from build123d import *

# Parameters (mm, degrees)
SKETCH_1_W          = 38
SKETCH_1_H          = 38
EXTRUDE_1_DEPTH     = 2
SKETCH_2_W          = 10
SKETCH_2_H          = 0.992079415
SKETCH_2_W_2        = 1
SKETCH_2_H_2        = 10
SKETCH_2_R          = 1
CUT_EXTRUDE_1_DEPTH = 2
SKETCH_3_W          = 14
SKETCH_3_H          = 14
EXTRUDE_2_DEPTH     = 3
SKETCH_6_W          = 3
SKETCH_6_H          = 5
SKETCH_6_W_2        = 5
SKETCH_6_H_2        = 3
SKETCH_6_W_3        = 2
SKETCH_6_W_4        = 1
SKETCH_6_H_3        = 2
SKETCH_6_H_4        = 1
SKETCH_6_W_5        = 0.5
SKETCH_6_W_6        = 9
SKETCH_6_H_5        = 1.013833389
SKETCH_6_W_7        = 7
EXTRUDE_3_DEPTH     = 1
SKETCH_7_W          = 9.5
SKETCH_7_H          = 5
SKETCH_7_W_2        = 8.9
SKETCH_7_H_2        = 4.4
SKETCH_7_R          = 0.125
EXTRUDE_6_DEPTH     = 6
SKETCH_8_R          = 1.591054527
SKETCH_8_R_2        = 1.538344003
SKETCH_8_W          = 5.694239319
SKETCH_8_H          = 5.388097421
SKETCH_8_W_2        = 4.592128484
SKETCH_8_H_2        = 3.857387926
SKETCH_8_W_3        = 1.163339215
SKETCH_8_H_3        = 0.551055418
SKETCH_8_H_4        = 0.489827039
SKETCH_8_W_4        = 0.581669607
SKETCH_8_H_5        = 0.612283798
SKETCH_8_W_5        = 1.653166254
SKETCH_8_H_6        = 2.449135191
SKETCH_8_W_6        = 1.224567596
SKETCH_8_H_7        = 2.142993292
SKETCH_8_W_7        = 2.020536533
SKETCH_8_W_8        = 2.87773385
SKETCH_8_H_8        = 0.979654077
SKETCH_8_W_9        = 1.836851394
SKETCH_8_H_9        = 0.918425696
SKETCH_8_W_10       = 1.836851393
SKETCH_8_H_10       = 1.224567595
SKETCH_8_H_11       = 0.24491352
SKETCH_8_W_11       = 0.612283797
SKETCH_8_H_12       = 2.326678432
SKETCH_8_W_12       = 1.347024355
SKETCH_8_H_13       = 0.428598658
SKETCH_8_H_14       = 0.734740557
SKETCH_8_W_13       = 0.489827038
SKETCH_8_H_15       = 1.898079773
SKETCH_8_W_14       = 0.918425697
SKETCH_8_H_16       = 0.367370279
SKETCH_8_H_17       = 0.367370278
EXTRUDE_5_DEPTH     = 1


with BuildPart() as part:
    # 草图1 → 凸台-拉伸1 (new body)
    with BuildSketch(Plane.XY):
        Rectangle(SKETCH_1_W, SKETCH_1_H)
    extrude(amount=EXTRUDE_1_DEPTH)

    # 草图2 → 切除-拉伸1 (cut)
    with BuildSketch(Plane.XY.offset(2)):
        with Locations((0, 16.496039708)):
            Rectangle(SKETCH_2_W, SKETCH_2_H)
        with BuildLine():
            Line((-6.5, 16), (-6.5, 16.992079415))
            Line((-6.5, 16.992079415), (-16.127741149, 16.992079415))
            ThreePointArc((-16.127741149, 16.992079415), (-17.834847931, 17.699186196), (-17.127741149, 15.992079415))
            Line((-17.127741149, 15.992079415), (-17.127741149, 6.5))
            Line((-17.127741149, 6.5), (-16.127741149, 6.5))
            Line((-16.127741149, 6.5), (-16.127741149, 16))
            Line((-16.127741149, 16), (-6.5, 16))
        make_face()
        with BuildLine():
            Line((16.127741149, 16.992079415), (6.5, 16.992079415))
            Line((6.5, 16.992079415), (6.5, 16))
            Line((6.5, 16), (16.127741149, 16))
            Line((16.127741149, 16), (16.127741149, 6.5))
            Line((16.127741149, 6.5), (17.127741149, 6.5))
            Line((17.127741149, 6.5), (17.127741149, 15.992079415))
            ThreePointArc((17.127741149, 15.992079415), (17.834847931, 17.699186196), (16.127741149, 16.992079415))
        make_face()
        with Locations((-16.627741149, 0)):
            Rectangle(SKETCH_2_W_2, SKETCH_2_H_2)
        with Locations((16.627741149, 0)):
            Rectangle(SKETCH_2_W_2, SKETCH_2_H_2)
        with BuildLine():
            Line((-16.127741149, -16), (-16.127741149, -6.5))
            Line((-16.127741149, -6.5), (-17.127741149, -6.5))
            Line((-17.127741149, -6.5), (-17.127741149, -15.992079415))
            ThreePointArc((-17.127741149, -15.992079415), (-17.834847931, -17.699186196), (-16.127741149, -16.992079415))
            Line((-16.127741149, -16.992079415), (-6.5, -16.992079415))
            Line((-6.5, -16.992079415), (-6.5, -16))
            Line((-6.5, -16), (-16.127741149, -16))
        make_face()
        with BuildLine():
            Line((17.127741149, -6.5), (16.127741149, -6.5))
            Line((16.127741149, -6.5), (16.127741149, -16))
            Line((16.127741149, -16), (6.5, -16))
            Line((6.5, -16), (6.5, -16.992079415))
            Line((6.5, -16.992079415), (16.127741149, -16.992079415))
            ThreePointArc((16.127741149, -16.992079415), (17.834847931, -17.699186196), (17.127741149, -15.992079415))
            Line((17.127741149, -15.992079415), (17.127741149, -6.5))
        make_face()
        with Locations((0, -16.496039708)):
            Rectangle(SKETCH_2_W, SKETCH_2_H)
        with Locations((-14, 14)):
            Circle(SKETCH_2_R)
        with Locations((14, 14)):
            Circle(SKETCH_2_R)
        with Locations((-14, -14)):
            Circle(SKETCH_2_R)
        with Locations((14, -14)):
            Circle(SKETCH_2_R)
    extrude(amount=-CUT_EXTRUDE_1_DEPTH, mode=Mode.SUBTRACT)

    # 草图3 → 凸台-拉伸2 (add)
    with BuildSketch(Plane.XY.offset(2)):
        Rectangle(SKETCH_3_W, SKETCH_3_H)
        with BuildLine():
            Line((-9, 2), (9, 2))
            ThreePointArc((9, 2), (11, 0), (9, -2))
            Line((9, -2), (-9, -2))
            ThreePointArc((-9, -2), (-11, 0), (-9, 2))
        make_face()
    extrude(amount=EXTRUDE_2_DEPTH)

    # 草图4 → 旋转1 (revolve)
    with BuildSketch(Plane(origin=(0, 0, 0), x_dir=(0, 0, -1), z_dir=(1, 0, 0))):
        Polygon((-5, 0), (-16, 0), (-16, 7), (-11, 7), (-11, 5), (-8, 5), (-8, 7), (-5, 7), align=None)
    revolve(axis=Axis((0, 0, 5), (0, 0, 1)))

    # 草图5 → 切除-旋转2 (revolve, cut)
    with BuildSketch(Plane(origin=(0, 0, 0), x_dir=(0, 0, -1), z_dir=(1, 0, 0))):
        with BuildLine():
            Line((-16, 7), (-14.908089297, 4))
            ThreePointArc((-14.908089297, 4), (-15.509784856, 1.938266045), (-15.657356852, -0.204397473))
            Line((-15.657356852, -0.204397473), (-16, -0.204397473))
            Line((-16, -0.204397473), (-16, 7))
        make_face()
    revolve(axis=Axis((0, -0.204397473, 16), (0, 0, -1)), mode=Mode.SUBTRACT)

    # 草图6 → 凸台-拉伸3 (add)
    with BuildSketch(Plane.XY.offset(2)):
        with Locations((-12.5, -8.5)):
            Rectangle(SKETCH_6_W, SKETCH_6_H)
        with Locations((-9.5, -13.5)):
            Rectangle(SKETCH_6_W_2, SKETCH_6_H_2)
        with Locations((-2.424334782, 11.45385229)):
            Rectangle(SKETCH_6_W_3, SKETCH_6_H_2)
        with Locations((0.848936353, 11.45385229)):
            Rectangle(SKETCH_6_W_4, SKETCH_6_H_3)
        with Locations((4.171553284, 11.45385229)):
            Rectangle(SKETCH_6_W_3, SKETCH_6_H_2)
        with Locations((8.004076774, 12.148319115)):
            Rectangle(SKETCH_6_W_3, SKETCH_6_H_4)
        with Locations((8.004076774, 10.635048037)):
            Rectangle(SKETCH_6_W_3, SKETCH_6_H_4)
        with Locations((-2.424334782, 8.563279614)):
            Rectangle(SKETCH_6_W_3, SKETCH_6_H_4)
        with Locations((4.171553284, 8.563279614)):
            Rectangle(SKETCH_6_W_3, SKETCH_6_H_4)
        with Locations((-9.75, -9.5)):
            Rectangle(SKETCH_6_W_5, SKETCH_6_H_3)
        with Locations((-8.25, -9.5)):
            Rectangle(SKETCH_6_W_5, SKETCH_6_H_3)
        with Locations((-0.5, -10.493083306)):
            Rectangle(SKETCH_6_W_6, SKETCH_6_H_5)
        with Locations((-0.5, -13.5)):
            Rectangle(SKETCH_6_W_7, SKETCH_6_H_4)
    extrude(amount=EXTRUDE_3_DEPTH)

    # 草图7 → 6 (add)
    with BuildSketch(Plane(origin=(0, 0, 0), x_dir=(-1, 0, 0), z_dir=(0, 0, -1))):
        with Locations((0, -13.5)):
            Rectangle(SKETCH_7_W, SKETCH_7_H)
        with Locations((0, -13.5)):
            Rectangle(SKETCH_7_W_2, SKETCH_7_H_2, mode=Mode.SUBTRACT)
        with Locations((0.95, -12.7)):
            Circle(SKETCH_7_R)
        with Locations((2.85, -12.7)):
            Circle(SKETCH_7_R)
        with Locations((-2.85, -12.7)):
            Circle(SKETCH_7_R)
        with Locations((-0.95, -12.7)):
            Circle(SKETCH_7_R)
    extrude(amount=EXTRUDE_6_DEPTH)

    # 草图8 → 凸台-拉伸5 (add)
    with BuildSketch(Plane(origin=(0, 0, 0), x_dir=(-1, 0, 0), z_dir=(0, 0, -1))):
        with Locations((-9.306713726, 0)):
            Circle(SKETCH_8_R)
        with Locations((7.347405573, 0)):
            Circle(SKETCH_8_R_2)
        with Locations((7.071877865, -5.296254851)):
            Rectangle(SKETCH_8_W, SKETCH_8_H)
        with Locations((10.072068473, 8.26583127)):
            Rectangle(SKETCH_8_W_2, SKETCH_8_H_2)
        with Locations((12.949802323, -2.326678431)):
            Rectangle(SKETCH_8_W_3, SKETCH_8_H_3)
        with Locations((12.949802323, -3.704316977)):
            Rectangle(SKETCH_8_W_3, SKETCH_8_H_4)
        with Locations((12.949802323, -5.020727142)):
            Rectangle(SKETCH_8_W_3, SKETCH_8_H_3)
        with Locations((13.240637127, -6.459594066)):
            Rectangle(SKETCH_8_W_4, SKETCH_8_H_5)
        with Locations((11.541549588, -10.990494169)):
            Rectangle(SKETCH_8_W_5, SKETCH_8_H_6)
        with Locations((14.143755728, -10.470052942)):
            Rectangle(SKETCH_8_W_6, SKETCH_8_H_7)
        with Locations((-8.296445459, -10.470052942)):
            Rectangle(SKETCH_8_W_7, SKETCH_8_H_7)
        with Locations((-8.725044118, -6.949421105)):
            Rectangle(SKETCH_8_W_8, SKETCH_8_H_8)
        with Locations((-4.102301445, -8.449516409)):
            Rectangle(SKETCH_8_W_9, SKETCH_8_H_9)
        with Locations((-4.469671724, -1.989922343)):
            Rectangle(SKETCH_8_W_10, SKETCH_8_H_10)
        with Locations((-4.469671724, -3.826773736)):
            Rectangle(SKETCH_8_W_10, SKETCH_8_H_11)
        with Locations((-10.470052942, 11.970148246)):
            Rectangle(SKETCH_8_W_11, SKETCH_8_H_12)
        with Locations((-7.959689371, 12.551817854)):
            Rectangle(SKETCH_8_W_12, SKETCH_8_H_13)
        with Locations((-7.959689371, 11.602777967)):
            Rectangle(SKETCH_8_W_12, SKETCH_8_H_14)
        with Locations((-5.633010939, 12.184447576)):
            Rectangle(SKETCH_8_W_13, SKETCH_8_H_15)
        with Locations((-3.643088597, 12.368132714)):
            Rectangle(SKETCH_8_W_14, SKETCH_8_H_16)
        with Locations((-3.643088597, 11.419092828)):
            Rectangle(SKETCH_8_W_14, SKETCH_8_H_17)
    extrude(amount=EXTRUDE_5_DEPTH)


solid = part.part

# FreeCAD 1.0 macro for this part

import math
import FreeCAD as App
import Part
import Sketcher
from FreeCAD import Vector
Q = App.Units.Quantity


def add_polygon(sketch, points):
    """Adds a closed chain of lines whose ends are joined by coincident constraints."""
    first, n = sketch.GeometryCount, len(points)
    for a, b in zip(points, points[1:] + points[:1]):
        sketch.addGeometry(Part.LineSegment(App.Vector(*a, 0), App.Vector(*b, 0)), False)
    for i in range(n):
        sketch.addConstraint(Sketcher.Constraint("Coincident", first + i, 2, first + (i + 1) % n, 1))

doc = App.newDocument("Part")
body = doc.addObject("PartDesign::Body", "Body")

# Sketch on XY plane
sketch1 = doc.addObject("Sketcher::SketchObject", "Sketch")
body.addObject(sketch1)
sketch1.AttachmentSupport = (doc.XY_Plane, [""])
sketch1.MapMode = "FlatFace"
add_polygon(sketch1, [(-19, 19), (-19, -19), (19, -19), (19, 19)])  # lines 0-3
sketch1.addConstraint(Sketcher.Constraint("Vertical", 0))
sketch1.addConstraint(Sketcher.Constraint("Horizontal", 1))
sketch1.addConstraint(Sketcher.Constraint("Vertical", 2))
sketch1.addConstraint(Sketcher.Constraint("Horizontal", 3))
sketch1.addConstraint(Sketcher.Constraint("Symmetric", 0, 2, 2, 2, -1, 1))
sketch1.addConstraint(Sketcher.Constraint("Equal", 3, 0))
sketch1.addConstraint(Sketcher.Constraint("DistanceX", 1, 1, 1, 2, 38.0))
pad1 = doc.addObject("PartDesign::Pad", "Pad")
body.addObject(pad1)
pad1.Profile = sketch1
pad1.Length = 2

# Sketch on XY plane
sketch2 = doc.addObject("Sketcher::SketchObject", "Sketch001")
body.addObject(sketch2)
sketch2.AttachmentSupport = (doc.XY_Plane, [""])
sketch2.MapMode = "FlatFace"
sketch2.AttachmentOffset = App.Placement(Vector(0, 0, 2), App.Rotation())
add_polygon(sketch2, [(-5, 17), (-5, 16), (5, 16), (5, 17)])  # lines 0-3
sketch2.addGeometry(Part.LineSegment(Vector(-6.5, 16, 0), Vector(-6.5, 17, 0)), False)  # 4
sketch2.addGeometry(Part.LineSegment(Vector(-6.5, 17, 0), Vector(-16.1, 17, 0)), False)  # 5
sketch2.addGeometry(Part.ArcOfCircle(Part.Circle(Vector(-17.1, 17, 0), Vector(0, 0, 1), 1), math.radians(0), math.radians(270)), False)  # 6
sketch2.addGeometry(Part.LineSegment(Vector(-17.1, 16, 0), Vector(-17.1, 6.5, 0)), False)  # 7
sketch2.addGeometry(Part.LineSegment(Vector(-17.1, 6.5, 0), Vector(-16.1, 6.5, 0)), False)  # 8
sketch2.addGeometry(Part.LineSegment(Vector(-16.1, 6.5, 0), Vector(-16.1, 16, 0)), False)  # 9
sketch2.addGeometry(Part.LineSegment(Vector(-16.1, 16, 0), Vector(-6.5, 16, 0)), False)  # 10
sketch2.addGeometry(Part.LineSegment(Vector(16.1, 17, 0), Vector(6.5, 17, 0)), False)  # 11
sketch2.addGeometry(Part.LineSegment(Vector(6.5, 17, 0), Vector(6.5, 16, 0)), False)  # 12
sketch2.addGeometry(Part.LineSegment(Vector(6.5, 16, 0), Vector(16.1, 16, 0)), False)  # 13
sketch2.addGeometry(Part.LineSegment(Vector(16.1, 16, 0), Vector(16.1, 6.5, 0)), False)  # 14
sketch2.addGeometry(Part.LineSegment(Vector(16.1, 6.5, 0), Vector(17.1, 6.5, 0)), False)  # 15
sketch2.addGeometry(Part.LineSegment(Vector(17.1, 6.5, 0), Vector(17.1, 16, 0)), False)  # 16
sketch2.addGeometry(Part.ArcOfCircle(Part.Circle(Vector(17.1, 17, 0), Vector(0, 0, 1), 1), math.radians(-90), math.radians(180)), False)  # 17
add_polygon(sketch2, [(-17.1, 5), (-17.1, -5), (-16.1, -5), (-16.1, 5)])  # lines 18-21
add_polygon(sketch2, [(16.1, 5), (16.1, -5), (17.1, -5), (17.1, 5)])  # lines 22-25
sketch2.addGeometry(Part.LineSegment(Vector(-16.1, -16, 0), Vector(-16.1, -6.5, 0)), False)  # 26
sketch2.addGeometry(Part.LineSegment(Vector(-16.1, -6.5, 0), Vector(-17.1, -6.5, 0)), False)  # 27
sketch2.addGeometry(Part.LineSegment(Vector(-17.1, -6.5, 0), Vector(-17.1, -16, 0)), False)  # 28
sketch2.addGeometry(Part.ArcOfCircle(Part.Circle(Vector(-17.1, -17, 0), Vector(0, 0, 1), 1), math.radians(90), math.radians(360)), False)  # 29
sketch2.addGeometry(Part.LineSegment(Vector(-16.1, -17, 0), Vector(-6.5, -17, 0)), False)  # 30
sketch2.addGeometry(Part.LineSegment(Vector(-6.5, -17, 0), Vector(-6.5, -16, 0)), False)  # 31
sketch2.addGeometry(Part.LineSegment(Vector(-6.5, -16, 0), Vector(-16.1, -16, 0)), False)  # 32
sketch2.addGeometry(Part.LineSegment(Vector(17.1, -6.5, 0), Vector(16.1, -6.5, 0)), False)  # 33
sketch2.addGeometry(Part.LineSegment(Vector(16.1, -6.5, 0), Vector(16.1, -16, 0)), False)  # 34
sketch2.addGeometry(Part.LineSegment(Vector(16.1, -16, 0), Vector(6.5, -16, 0)), False)  # 35
sketch2.addGeometry(Part.LineSegment(Vector(6.5, -16, 0), Vector(6.5, -17, 0)), False)  # 36
sketch2.addGeometry(Part.LineSegment(Vector(6.5, -17, 0), Vector(16.1, -17, 0)), False)  # 37
sketch2.addGeometry(Part.ArcOfCircle(Part.Circle(Vector(17.1, -17, 0), Vector(0, 0, 1), 1), math.radians(180), math.radians(450)), False)  # 38
sketch2.addGeometry(Part.LineSegment(Vector(17.1, -16, 0), Vector(17.1, -6.5, 0)), False)  # 39
add_polygon(sketch2, [(-5, -16), (-5, -17), (5, -17), (5, -16)])  # lines 40-43
sketch2.addGeometry(Part.Circle(Vector(-14, 14, 0), Vector(0, 0, 1), 1), False)  # 44
sketch2.addGeometry(Part.Circle(Vector(14, 14, 0), Vector(0, 0, 1), 1), False)  # 45
sketch2.addGeometry(Part.Circle(Vector(-14, -14, 0), Vector(0, 0, 1), 1), False)  # 46
sketch2.addGeometry(Part.Circle(Vector(14, -14, 0), Vector(0, 0, 1), 1), False)  # 47
sketch2.addConstraint(Sketcher.Constraint("Coincident", 4, 2, 5, 1))
sketch2.addConstraint(Sketcher.Constraint("Coincident", 5, 2, 6, 1))
sketch2.addConstraint(Sketcher.Constraint("Coincident", 6, 2, 7, 1))
sketch2.addConstraint(Sketcher.Constraint("Coincident", 7, 2, 8, 1))
sketch2.addConstraint(Sketcher.Constraint("Coincident", 8, 2, 9, 1))
sketch2.addConstraint(Sketcher.Constraint("Coincident", 9, 2, 10, 1))
sketch2.addConstraint(Sketcher.Constraint("Coincident", 10, 2, 4, 1))
sketch2.addConstraint(Sketcher.Constraint("Coincident", 11, 2, 12, 1))
sketch2.addConstraint(Sketcher.Constraint("Coincident", 12, 2, 13, 1))
sketch2.addConstraint(Sketcher.Constraint("Coincident", 13, 2, 14, 1))
sketch2.addConstraint(Sketcher.Constraint("Coincident", 14, 2, 15, 1))
sketch2.addConstraint(Sketcher.Constraint("Coincident", 15, 2, 16, 1))
sketch2.addConstraint(Sketcher.Constraint("Coincident", 16, 2, 17, 1))
sketch2.addConstraint(Sketcher.Constraint("Coincident", 17, 2, 11, 1))
sketch2.addConstraint(Sketcher.Constraint("Coincident", 26, 2, 27, 1))
sketch2.addConstraint(Sketcher.Constraint("Coincident", 27, 2, 28, 1))
sketch2.addConstraint(Sketcher.Constraint("Coincident", 28, 2, 29, 1))
sketch2.addConstraint(Sketcher.Constraint("Coincident", 29, 2, 30, 1))
sketch2.addConstraint(Sketcher.Constraint("Coincident", 30, 2, 31, 1))
sketch2.addConstraint(Sketcher.Constraint("Coincident", 31, 2, 32, 1))
sketch2.addConstraint(Sketcher.Constraint("Coincident", 32, 2, 26, 1))
sketch2.addConstraint(Sketcher.Constraint("Coincident", 33, 2, 34, 1))
sketch2.addConstraint(Sketcher.Constraint("Coincident", 34, 2, 35, 1))
sketch2.addConstraint(Sketcher.Constraint("Coincident", 35, 2, 36, 1))
sketch2.addConstraint(Sketcher.Constraint("Coincident", 36, 2, 37, 1))
sketch2.addConstraint(Sketcher.Constraint("Coincident", 37, 2, 38, 1))
sketch2.addConstraint(Sketcher.Constraint("Coincident", 38, 2, 39, 1))
sketch2.addConstraint(Sketcher.Constraint("Coincident", 39, 2, 33, 1))
sketch2.addConstraint(Sketcher.Constraint("Vertical", 0))
sketch2.addConstraint(Sketcher.Constraint("Horizontal", 1))
sketch2.addConstraint(Sketcher.Constraint("Vertical", 2))
sketch2.addConstraint(Sketcher.Constraint("Horizontal", 3))
sketch2.addConstraint(Sketcher.Constraint("Vertical", 4))
sketch2.addConstraint(Sketcher.Constraint("Horizontal", 5))
sketch2.addConstraint(Sketcher.Constraint("Vertical", 7))
sketch2.addConstraint(Sketcher.Constraint("Horizontal", 8))
sketch2.addConstraint(Sketcher.Constraint("Vertical", 9))
sketch2.addConstraint(Sketcher.Constraint("Horizontal", 10))
sketch2.addConstraint(Sketcher.Constraint("Horizontal", 11))
sketch2.addConstraint(Sketcher.Constraint("Vertical", 12))
sketch2.addConstraint(Sketcher.Constraint("Horizontal", 13))
sketch2.addConstraint(Sketcher.Constraint("Vertical", 14))
sketch2.addConstraint(Sketcher.Constraint("Horizontal", 15))
sketch2.addConstraint(Sketcher.Constraint("Vertical", 16))
sketch2.addConstraint(Sketcher.Constraint("Vertical", 18))
sketch2.addConstraint(Sketcher.Constraint("Horizontal", 19))
sketch2.addConstraint(Sketcher.Constraint("Vertical", 20))
sketch2.addConstraint(Sketcher.Constraint("Horizontal", 21))
sketch2.addConstraint(Sketcher.Constraint("Vertical", 22))
sketch2.addConstraint(Sketcher.Constraint("Horizontal", 23))
sketch2.addConstraint(Sketcher.Constraint("Vertical", 24))
sketch2.addConstraint(Sketcher.Constraint("Horizontal", 25))
sketch2.addConstraint(Sketcher.Constraint("Vertical", 26))
sketch2.addConstraint(Sketcher.Constraint("Horizontal", 27))
sketch2.addConstraint(Sketcher.Constraint("Vertical", 28))
sketch2.addConstraint(Sketcher.Constraint("Horizontal", 30))
sketch2.addConstraint(Sketcher.Constraint("Vertical", 31))
sketch2.addConstraint(Sketcher.Constraint("Horizontal", 32))
sketch2.addConstraint(Sketcher.Constraint("Horizontal", 33))
sketch2.addConstraint(Sketcher.Constraint("Vertical", 34))
sketch2.addConstraint(Sketcher.Constraint("Horizontal", 35))
sketch2.addConstraint(Sketcher.Constraint("Vertical", 36))
sketch2.addConstraint(Sketcher.Constraint("Horizontal", 37))
sketch2.addConstraint(Sketcher.Constraint("Vertical", 39))
sketch2.addConstraint(Sketcher.Constraint("Vertical", 40))
sketch2.addConstraint(Sketcher.Constraint("Horizontal", 41))
sketch2.addConstraint(Sketcher.Constraint("Vertical", 42))
sketch2.addConstraint(Sketcher.Constraint("Horizontal", 43))
sketch2.addConstraint(Sketcher.Constraint("Equal", 6, 17))
sketch2.addConstraint(Sketcher.Constraint("Equal", 17, 29))
sketch2.addConstraint(Sketcher.Constraint("Equal", 29, 38))
sketch2.addConstraint(Sketcher.Constraint("Equal", 38, 44))
sketch2.addConstraint(Sketcher.Constraint("Equal", 44, 45))
sketch2.addConstraint(Sketcher.Constraint("Equal", 45, 46))
sketch2.addConstraint(Sketcher.Constraint("Equal", 46, 47))
sketch2.addConstraint(Sketcher.Constraint("Symmetric", 17, 3, 29, 3, -1, 1))
sketch2.addConstraint(Sketcher.Constraint("Symmetric", 6, 3, 38, 3, -1, 1))
sketch2.addConstraint(Sketcher.Constraint("Symmetric", 45, 3, 46, 3, -1, 1))
sketch2.addConstraint(Sketcher.Constraint("Symmetric", 44, 3, 47, 3, -1, 1))
sketch2.addConstraint(Sketcher.Constraint("Symmetric", 20, 2, 22, 2, -1, 1))
sketch2.addConstraint(Sketcher.Constraint("Symmetric", 18, 2, 24, 2, -1, 1))
sketch2.addConstraint(Sketcher.Constraint("Symmetric", 14, 2, 26, 2, -1, 1))
sketch2.addConstraint(Sketcher.Constraint("Symmetric", 11, 2, 30, 2, -1, 1))
sketch2.addConstraint(Sketcher.Constraint("Symmetric", 8, 2, 33, 2, -1, 1))
sketch2.addConstraint(Sketcher.Constraint("Symmetric", 10, 2, 35, 2, -1, 1))
sketch2.addConstraint(Sketcher.Constraint("Symmetric", 2, 2, 40, 2, -1, 1))
sketch2.addConstraint(Sketcher.Constraint("Symmetric", 0, 2, 42, 2, -1, 1))
sketch2.addConstraint(Sketcher.Constraint("Symmetric", 6, 3, 17, 3, -2))
sketch2.addConstraint(Sketcher.Constraint("Symmetric", 44, 3, 45, 3, -2))
sketch2.addConstraint(Sketcher.Constraint("Symmetric", 4, 2, 11, 2, -2))
sketch2.addConstraint(Sketcher.Constraint("Symmetric", 9, 2, 13, 2, -2))
sketch2.addConstraint(Sketcher.Constraint("Symmetric", 7, 2, 15, 2, -2))
sketch2.addConstraint(Sketcher.Constraint("Horizontal", 17, 3, 2, 2))
sketch2.addConstraint(Sketcher.Constraint("Horizontal", 3, 2, 4, 2))
sketch2.addConstraint(Sketcher.Constraint("Horizontal", 1, 2, 9, 2))
sketch2.addConstraint(Sketcher.Constraint("Horizontal", 19, 2, 22, 2))
sketch2.addConstraint(Sketcher.Constraint("Horizontal", 32, 2, 34, 2))
sketch2.addConstraint(Sketcher.Constraint("Horizontal", 30, 2, 36, 2))
sketch2.addConstraint(Sketcher.Constraint("Vertical", 29, 3, 6, 2))
sketch2.addConstraint(Sketcher.Constraint("Vertical", 5, 2, 8, 2))
sketch2.addConstraint(Sketcher.Constraint("Vertical", 7, 2, 18, 2))
sketch2.addConstraint(Sketcher.Constraint("Vertical", 9, 2, 19, 2))
sketch2.addConstraint(Sketcher.Constraint("Vertical", 21, 2, 27, 2))
sketch2.addConstraint(Sketcher.Constraint("Vertical", 24, 2, 38, 2))
sketch2.addConstraint(Sketcher.Constraint("Vertical", 3, 2, 40, 2))
sketch2.addConstraint(Sketcher.Constraint("Equal", 43, 18))
sketch2.addConstraint(Sketcher.Constraint("Diameter", 44, 2.0))
sketch2.addConstraint(Sketcher.Constraint("DistanceX", 1, 1, 1, 2, 10.0))
sketch2.addConstraint(Sketcher.Constraint("DistanceY", 9, 1, 9, 2, 9.5))
sketch2.addConstraint(Sketcher.Constraint("DistanceX", 44, 3, -1, 1, 14.0))
sketch2.addConstraint(Sketcher.Constraint("DistanceY", -1, 1, 44, 3, 14.0))
sketch2.addConstraint(Sketcher.Constraint("DistanceY", -1, 1, 0, 2, 16.0))
sketch2.addConstraint(Sketcher.Constraint("DistanceX", 31, 2, 35, 2, 13.0))
sketch2.addConstraint(Sketcher.Constraint("DistanceX", 5, 2, 5, 1, 9.627741))
sketch2.addConstraint(Sketcher.Constraint("DistanceY", 0, 2, 0, 1, 0.992079))
pocket1 = doc.addObject("PartDesign::Pocket", "Pocket")
body.addObject(pocket1)
pocket1.Profile = sketch2
pocket1.Length = 2

# Sketch on XY plane
sketch3 = doc.addObject("Sketcher::SketchObject", "Sketch002")
body.addObject(sketch3)
sketch3.AttachmentSupport = (doc.XY_Plane, [""])
sketch3.MapMode = "FlatFace"
sketch3.AttachmentOffset = App.Placement(Vector(0, 0, 2), App.Rotation())
sketch3.addGeometry(Part.LineSegment(Vector(-7, -2, 0), Vector(-7, -7, 0)), False)
sketch3.addGeometry(Part.LineSegment(Vector(-7, -7, 0), Vector(7, -7, 0)), False)
sketch3.addGeometry(Part.LineSegment(Vector(7, -7, 0), Vector(7, -2, 0)), False)
sketch3.addGeometry(Part.LineSegment(Vector(7, -2, 0), Vector(9, -2, 0)), False)
sketch3.addGeometry(Part.ArcOfCircle(Part.Circle(Vector(9, 0, 0), Vector(0, 0, 1), 2), math.radians(-90), math.radians(90)), False)
sketch3.addGeometry(Part.LineSegment(Vector(9, 2, 0), Vector(7, 2, 0)), False)
sketch3.addGeometry(Part.LineSegment(Vector(7, 2, 0), Vector(7, 7, 0)), False)
sketch3.addGeometry(Part.LineSegment(Vector(7, 7, 0), Vector(-7, 7, 0)), False)
sketch3.addGeometry(Part.LineSegment(Vector(-7, 7, 0), Vector(-7, 2, 0)), False)
sketch3.addGeometry(Part.LineSegment(Vector(-7, 2, 0), Vector(-9, 2, 0)), False)
sketch3.addGeometry(Part.ArcOfCircle(Part.Circle(Vector(-9, 0, 0), Vector(0, 0, 1), 2), math.radians(90), math.radians(270)), False)
sketch3.addGeometry(Part.LineSegment(Vector(-9, -2, 0), Vector(-7, -2, 0)), False)
sketch3.addConstraint(Sketcher.Constraint("Coincident", 0, 2, 1, 1))
sketch3.addConstraint(Sketcher.Constraint("Coincident", 1, 2, 2, 1))
sketch3.addConstraint(Sketcher.Constraint("Coincident", 2, 2, 3, 1))
sketch3.addConstraint(Sketcher.Constraint("Tangent", 3, 2, 4, 1))
sketch3.addConstraint(Sketcher.Constraint("Tangent", 4, 2, 5, 1))
sketch3.addConstraint(Sketcher.Constraint("Coincident", 5, 2, 6, 1))
sketch3.addConstraint(Sketcher.Constraint("Coincident", 6, 2, 7, 1))
sketch3.addConstraint(Sketcher.Constraint("Coincident", 7, 2, 8, 1))
sketch3.addConstraint(Sketcher.Constraint("Coincident", 8, 2, 9, 1))
sketch3.addConstraint(Sketcher.Constraint("Tangent", 9, 2, 10, 1))
sketch3.addConstraint(Sketcher.Constraint("Tangent", 10, 2, 11, 1))
sketch3.addConstraint(Sketcher.Constraint("Coincident", 11, 2, 0, 1))
sketch3.addConstraint(Sketcher.Constraint("Vertical", 0))
sketch3.addConstraint(Sketcher.Constraint("Horizontal", 1))
sketch3.addConstraint(Sketcher.Constraint("Vertical", 2))
sketch3.addConstraint(Sketcher.Constraint("Horizontal", 3))
sketch3.addConstraint(Sketcher.Constraint("Horizontal", 5))
sketch3.addConstraint(Sketcher.Constraint("Vertical", 6))
sketch3.addConstraint(Sketcher.Constraint("Horizontal", 7))
sketch3.addConstraint(Sketcher.Constraint("Vertical", 8))
sketch3.addConstraint(Sketcher.Constraint("Horizontal", 9))
sketch3.addConstraint(Sketcher.Constraint("Horizontal", 11))
sketch3.addConstraint(Sketcher.Constraint("Equal", 4, 10))
sketch3.addConstraint(Sketcher.Constraint("Symmetric", 4, 3, 10, 3, -1, 1))
sketch3.addConstraint(Sketcher.Constraint("Symmetric", 0, 2, 6, 2, -1, 1))
sketch3.addConstraint(Sketcher.Constraint("Symmetric", 5, 2, 8, 2, -2))
sketch3.addConstraint(Sketcher.Constraint("Vertical", 2, 2, 5, 2))
sketch3.addConstraint(Sketcher.Constraint("Radius", 4, 2.0))
sketch3.addConstraint(Sketcher.Constraint("DistanceX", 1, 1, 1, 2, 14.0))
sketch3.addConstraint(Sketcher.Constraint("DistanceX", 3, 1, 3, 2, 2.0))
sketch3.addConstraint(Sketcher.Constraint("DistanceY", 0, 2, 0, 1, 5.0))
pad2 = doc.addObject("PartDesign::Pad", "Pad001")
body.addObject(pad2)
pad2.Profile = sketch3
pad2.Length = 3

# Sketch on YZ plane
sketch4 = doc.addObject("Sketcher::SketchObject", "Sketch003")
body.addObject(sketch4)
sketch4.AttachmentSupport = (doc.YZ_Plane, [""])
sketch4.MapMode = "FlatFace"
add_polygon(sketch4, [(0, 16), (0, 5), (7, 5), (7, 8), (5, 8), (5, 11), (7, 11), (7, 16)])  # lines 0-7
sketch4.addConstraint(Sketcher.Constraint("Vertical", 0))
sketch4.addConstraint(Sketcher.Constraint("Horizontal", 1))
sketch4.addConstraint(Sketcher.Constraint("Vertical", 2))
sketch4.addConstraint(Sketcher.Constraint("Horizontal", 3))
sketch4.addConstraint(Sketcher.Constraint("Vertical", 4))
sketch4.addConstraint(Sketcher.Constraint("Horizontal", 5))
sketch4.addConstraint(Sketcher.Constraint("Vertical", 6))
sketch4.addConstraint(Sketcher.Constraint("Horizontal", 7))
sketch4.addConstraint(Sketcher.Constraint("PointOnObject", 0, 2, -2))
sketch4.addConstraint(Sketcher.Constraint("Vertical", 2, 2, 5, 2))
sketch4.addConstraint(Sketcher.Constraint("Equal", 2, 4))
sketch4.addConstraint(Sketcher.Constraint("DistanceX", 1, 1, 1, 2, 7.0))
sketch4.addConstraint(Sketcher.Constraint("DistanceX", 3, 2, 3, 1, 2.0))
sketch4.addConstraint(Sketcher.Constraint("DistanceY", 0, 2, 0, 1, 11.0))
sketch4.addConstraint(Sketcher.Constraint("DistanceY", 2, 1, 2, 2, 3.0))
sketch4.addConstraint(Sketcher.Constraint("DistanceY", -1, 1, 0, 2, 5.0))
revolution = doc.addObject("PartDesign::Revolution", "Revolution")
body.addObject(revolution)
revolution.Profile = sketch4
revolution.ReferenceAxis = (sketch4, ["V_Axis"])
revolution.Angle = 360

# Sketch on YZ plane
sketch5 = doc.addObject("Sketcher::SketchObject", "Sketch004")
body.addObject(sketch5)
sketch5.AttachmentSupport = (doc.YZ_Plane, [""])
sketch5.MapMode = "FlatFace"
sketch5.addGeometry(Part.LineSegment(Vector(4, 14.91, 0), Vector(7, 16, 0)), False)
sketch5.addGeometry(Part.LineSegment(Vector(7, 16, 0), Vector(-0.2, 16, 0)), False)
sketch5.addGeometry(Part.LineSegment(Vector(-0.2, 16, 0), Vector(-0.2, 15.66, 0)), False)
sketch5.addGeometry(Part.ArcOfCircle(Part.Circle(Vector(0.18, 5.66, 0), Vector(0, 0, 1), 10), math.radians(68), math.radians(92)), False)
sketch5.addGeometry(Part.LineSegment(Vector(-0.2, 16, 0), Vector(-0.2, 5.66, 0)), True)  # axis
sketch5.addConstraint(Sketcher.Constraint("Coincident", 0, 2, 1, 1))
sketch5.addConstraint(Sketcher.Constraint("Coincident", 1, 2, 2, 1))
sketch5.addConstraint(Sketcher.Constraint("Coincident", 2, 2, 3, 2))
sketch5.addConstraint(Sketcher.Constraint("Coincident", 3, 1, 0, 1))
sketch5.addConstraint(Sketcher.Constraint("Horizontal", 1))
sketch5.addConstraint(Sketcher.Constraint("Vertical", 2))
sketch5.addConstraint(Sketcher.Constraint("Vertical", 4))
sketch5.addConstraint(Sketcher.Constraint("Coincident", 4, 1, 1, 2))
sketch5.addConstraint(Sketcher.Constraint("Horizontal", 3, 3, 4, 2))
sketch5.addConstraint(Sketcher.Constraint("Radius", 3, 10.0))
sketch5.addConstraint(Sketcher.Constraint("Angle", 0, Q("20 deg")))
sketch5.addConstraint(Sketcher.Constraint("DistanceX", -1, 1, 0, 2, 7.0))
sketch5.addConstraint(Sketcher.Constraint("DistanceY", -1, 1, 0, 2, 16.0))
sketch5.addConstraint(Sketcher.Constraint("DistanceX", -1, 1, 3, 1, 4.0))
sketch5.addConstraint(Sketcher.Constraint("DistanceX", 1, 2, 3, 3, 0.388201))
sketch5.addConstraint(Sketcher.Constraint("DistanceX", 1, 2, 1, 1, 7.204397))
groove = doc.addObject("PartDesign::Groove", "Groove")
body.addObject(groove)
groove.Profile = sketch5
groove.ReferenceAxis = (sketch5, ["Axis0"])
groove.Angle = 360

# Sketch on XY plane
sketch6 = doc.addObject("Sketcher::SketchObject", "Sketch005")
body.addObject(sketch6)
sketch6.AttachmentSupport = (doc.XY_Plane, [""])
sketch6.MapMode = "FlatFace"
sketch6.AttachmentOffset = App.Placement(Vector(0, 0, 2), App.Rotation())
add_polygon(sketch6, [(-14, -6), (-14, -11), (-11, -11), (-11, -6)])  # lines 0-3
add_polygon(sketch6, [(-12, -12), (-12, -15), (-7, -15), (-7, -12)])  # lines 4-7
add_polygon(sketch6, [(-3.4, 13), (-3.4, 10), (-1.4, 10), (-1.4, 13)])  # lines 8-11
add_polygon(sketch6, [(0.3, 12.5), (0.3, 10.5), (1.3, 10.5), (1.3, 12.5)])  # lines 12-15
add_polygon(sketch6, [(3.2, 13), (3.2, 10), (5.2, 10), (5.2, 13)])  # lines 16-19
add_polygon(sketch6, [(7, 12.6), (7, 11.6), (9, 11.6), (9, 12.6)])  # lines 20-23
add_polygon(sketch6, [(7, 11.1), (7, 10.1), (9, 10.1), (9, 11.1)])  # lines 24-27
add_polygon(sketch6, [(-3.4, 9.1), (-3.4, 8.1), (-1.4, 8.1), (-1.4, 9.1)])  # lines 28-31
add_polygon(sketch6, [(3.2, 9.1), (3.2, 8.1), (5.2, 8.1), (5.2, 9.1)])  # lines 32-35
add_polygon(sketch6, [(-10, -8.5), (-10, -10.5), (-9.5, -10.5), (-9.5, -8.5)])  # lines 36-39
add_polygon(sketch6, [(-8.5, -8.5), (-8.5, -10.5), (-8, -10.5), (-8, -8.5)])  # lines 40-43
add_polygon(sketch6, [(-5, -10), (-5, -11), (4, -11), (4, -10)])  # lines 44-47
add_polygon(sketch6, [(-4, -13), (-4, -14), (3, -14), (3, -13)])  # lines 48-51
sketch6.addConstraint(Sketcher.Constraint("Vertical", 0))
sketch6.addConstraint(Sketcher.Constraint("Horizontal", 1))
sketch6.addConstraint(Sketcher.Constraint("Vertical", 2))
sketch6.addConstraint(Sketcher.Constraint("Horizontal", 3))
sketch6.addConstraint(Sketcher.Constraint("Vertical", 4))
sketch6.addConstraint(Sketcher.Constraint("Horizontal", 5))
sketch6.addConstraint(Sketcher.Constraint("Vertical", 6))
sketch6.addConstraint(Sketcher.Constraint("Horizontal", 7))
sketch6.addConstraint(Sketcher.Constraint("Vertical", 8))
sketch6.addConstraint(Sketcher.Constraint("Horizontal", 9))
sketch6.addConstraint(Sketcher.Constraint("Vertical", 10))
sketch6.addConstraint(Sketcher.Constraint("Horizontal", 11))
sketch6.addConstraint(Sketcher.Constraint("Vertical", 12))
sketch6.addConstraint(Sketcher.Constraint("Horizontal", 13))
sketch6.addConstraint(Sketcher.Constraint("Vertical", 14))
sketch6.addConstraint(Sketcher.Constraint("Horizontal", 15))
sketch6.addConstraint(Sketcher.Constraint("Vertical", 16))
sketch6.addConstraint(Sketcher.Constraint("Horizontal", 17))
sketch6.addConstraint(Sketcher.Constraint("Vertical", 18))
sketch6.addConstraint(Sketcher.Constraint("Horizontal", 19))
sketch6.addConstraint(Sketcher.Constraint("Vertical", 20))
sketch6.addConstraint(Sketcher.Constraint("Horizontal", 21))
sketch6.addConstraint(Sketcher.Constraint("Vertical", 22))
sketch6.addConstraint(Sketcher.Constraint("Horizontal", 23))
sketch6.addConstraint(Sketcher.Constraint("Vertical", 24))
sketch6.addConstraint(Sketcher.Constraint("Horizontal", 25))
sketch6.addConstraint(Sketcher.Constraint("Vertical", 26))
sketch6.addConstraint(Sketcher.Constraint("Horizontal", 27))
sketch6.addConstraint(Sketcher.Constraint("Vertical", 28))
sketch6.addConstraint(Sketcher.Constraint("Horizontal", 29))
sketch6.addConstraint(Sketcher.Constraint("Vertical", 30))
sketch6.addConstraint(Sketcher.Constraint("Horizontal", 31))
sketch6.addConstraint(Sketcher.Constraint("Vertical", 32))
sketch6.addConstraint(Sketcher.Constraint("Horizontal", 33))
sketch6.addConstraint(Sketcher.Constraint("Vertical", 34))
sketch6.addConstraint(Sketcher.Constraint("Horizontal", 35))
sketch6.addConstraint(Sketcher.Constraint("Vertical", 36))
sketch6.addConstraint(Sketcher.Constraint("Horizontal", 37))
sketch6.addConstraint(Sketcher.Constraint("Vertical", 38))
sketch6.addConstraint(Sketcher.Constraint("Horizontal", 39))
sketch6.addConstraint(Sketcher.Constraint("Vertical", 40))
sketch6.addConstraint(Sketcher.Constraint("Horizontal", 41))
sketch6.addConstraint(Sketcher.Constraint("Vertical", 42))
sketch6.addConstraint(Sketcher.Constraint("Horizontal", 43))
sketch6.addConstraint(Sketcher.Constraint("Vertical", 44))
sketch6.addConstraint(Sketcher.Constraint("Horizontal", 45))
sketch6.addConstraint(Sketcher.Constraint("Vertical", 46))
sketch6.addConstraint(Sketcher.Constraint("Horizontal", 47))
sketch6.addConstraint(Sketcher.Constraint("Vertical", 48))
sketch6.addConstraint(Sketcher.Constraint("Horizontal", 49))
sketch6.addConstraint(Sketcher.Constraint("Vertical", 50))
sketch6.addConstraint(Sketcher.Constraint("Horizontal", 51))
sketch6.addConstraint(Sketcher.Constraint("Horizontal", 9, 2, 16, 2))
sketch6.addConstraint(Sketcher.Constraint("Horizontal", 11, 2, 18, 2))
sketch6.addConstraint(Sketcher.Constraint("Horizontal", 29, 2, 32, 2))
sketch6.addConstraint(Sketcher.Constraint("Horizontal", 31, 2, 34, 2))
sketch6.addConstraint(Sketcher.Constraint("Horizontal", 37, 2, 40, 2))
sketch6.addConstraint(Sketcher.Constraint("Horizontal", 39, 2, 42, 2))
sketch6.addConstraint(Sketcher.Constraint("Horizontal", 1, 2, 44, 2))
sketch6.addConstraint(Sketcher.Constraint("Vertical", 23, 2, 24, 2))
sketch6.addConstraint(Sketcher.Constraint("Vertical", 22, 2, 25, 2))
sketch6.addConstraint(Sketcher.Constraint("Vertical", 11, 2, 28, 2))
sketch6.addConstraint(Sketcher.Constraint("Vertical", 10, 2, 29, 2))
sketch6.addConstraint(Sketcher.Constraint("Vertical", 19, 2, 32, 2))
sketch6.addConstraint(Sketcher.Constraint("Vertical", 18, 2, 33, 2))
sketch6.addConstraint(Sketcher.Constraint("Equal", 11, 17))
sketch6.addConstraint(Sketcher.Constraint("Equal", 19, 21))
sketch6.addConstraint(Sketcher.Constraint("Equal", 39, 41))
sketch6.addConstraint(Sketcher.Constraint("Equal", 7, 0))
sketch6.addConstraint(Sketcher.Constraint("Equal", 3, 4))
sketch6.addConstraint(Sketcher.Constraint("Equal", 6, 8))
sketch6.addConstraint(Sketcher.Constraint("Equal", 35, 12))
sketch6.addConstraint(Sketcher.Constraint("Equal", 15, 20))
sketch6.addConstraint(Sketcher.Constraint("Equal", 22, 24))
sketch6.addConstraint(Sketcher.Constraint("Equal", 26, 28))
sketch6.addConstraint(Sketcher.Constraint("Equal", 14, 36))
sketch6.addConstraint(Sketcher.Constraint("Equal", 34, 48))
sketch6.addConstraint(Sketcher.Constraint("DistanceX", 1, 1, 1, 2, 3.0))
sketch6.addConstraint(Sketcher.Constraint("DistanceX", 5, 1, 5, 2, 5.0))
sketch6.addConstraint(Sketcher.Constraint("DistanceX", 9, 1, 9, 2, 2.0))
sketch6.addConstraint(Sketcher.Constraint("DistanceX", 13, 1, 13, 2, 1.0))
sketch6.addConstraint(Sketcher.Constraint("DistanceX", 45, 1, 45, 2, 9.0))
sketch6.addConstraint(Sketcher.Constraint("DistanceX", 49, 1, 49, 2, 7.0))
sketch6.addConstraint(Sketcher.Constraint("DistanceX", 37, 1, 37, 2, 0.5))
sketch6.addConstraint(Sketcher.Constraint("DistanceX", 0, 2, -1, 1, 14.0))
sketch6.addConstraint(Sketcher.Constraint("DistanceY", 0, 2, -1, 1, 11.0))
sketch6.addConstraint(Sketcher.Constraint("DistanceX", 4, 2, -1, 1, 12.0))
sketch6.addConstraint(Sketcher.Constraint("DistanceY", 4, 2, -1, 1, 15.0))
sketch6.addConstraint(Sketcher.Constraint("DistanceX", 36, 2, -1, 1, 10.0))
sketch6.addConstraint(Sketcher.Constraint("DistanceX", 41, 2, -1, 1, 8.0))
sketch6.addConstraint(Sketcher.Constraint("DistanceX", 44, 2, -1, 1, 5.0))
sketch6.addConstraint(Sketcher.Constraint("DistanceX", 48, 2, -1, 1, 4.0))
sketch6.addConstraint(Sketcher.Constraint("DistanceY", 48, 2, -1, 1, 14.0))
sketch6.addConstraint(Sketcher.Constraint("DistanceY", 36, 2, -1, 1, 10.5))
sketch6.addConstraint(Sketcher.Constraint("DistanceY", 9, 2, 12, 2, 0.5))
sketch6.addConstraint(Sketcher.Constraint("DistanceY", 44, 2, 44, 1, 1.013833))
sketch6.addConstraint(Sketcher.Constraint("DistanceY", -1, 1, 20, 2, 11.648319))
sketch6.addConstraint(Sketcher.Constraint("DistanceY", -1, 1, 24, 2, 10.135048))
sketch6.addConstraint(Sketcher.Constraint("DistanceY", -1, 1, 28, 2, 8.06328))
sketch6.addConstraint(Sketcher.Constraint("DistanceX", 9, 2, 12, 2, 1.773271))
sketch6.addConstraint(Sketcher.Constraint("DistanceX", 9, 2, 16, 2, 4.595888))
sketch6.addConstraint(Sketcher.Constraint("DistanceX", 14, 2, 20, 2, 5.65514))
sketch6.addConstraint(Sketcher.Constraint("DistanceX", 8, 2, -1, 1, 3.424335))
sketch6.addConstraint(Sketcher.Constraint("DistanceY", -1, 1, 8, 2, 9.953852))
pad3 = doc.addObject("PartDesign::Pad", "Pad002")
body.addObject(pad3)
pad3.Profile = sketch6
pad3.Length = 1

# Sketch on XY plane
sketch7 = doc.addObject("Sketcher::SketchObject", "Sketch006")
body.addObject(sketch7)
sketch7.AttachmentSupport = (doc.XY_Plane, [""])
sketch7.MapMode = "FlatFace"
add_polygon(sketch7, [(4.75, -11), (4.75, -16), (-4.75, -16), (-4.75, -11)])  # lines 0-3
add_polygon(sketch7, [(-4.45, -15.7), (4.45, -15.7), (4.45, -11.3), (-4.45, -11.3)])  # lines 4-7
sketch7.addGeometry(Part.Circle(Vector(-0.95, -12.7, 0), Vector(0, 0, 1), 0.12), False)  # 8
sketch7.addGeometry(Part.Circle(Vector(-2.85, -12.7, 0), Vector(0, 0, 1), 0.12), False)  # 9
sketch7.addGeometry(Part.Circle(Vector(2.85, -12.7, 0), Vector(0, 0, 1), 0.12), False)  # 10
sketch7.addGeometry(Part.Circle(Vector(0.95, -12.7, 0), Vector(0, 0, 1), 0.12), False)  # 11
sketch7.addConstraint(Sketcher.Constraint("Vertical", 0))
sketch7.addConstraint(Sketcher.Constraint("Horizontal", 1))
sketch7.addConstraint(Sketcher.Constraint("Vertical", 2))
sketch7.addConstraint(Sketcher.Constraint("Horizontal", 3))
sketch7.addConstraint(Sketcher.Constraint("Horizontal", 4))
sketch7.addConstraint(Sketcher.Constraint("Vertical", 5))
sketch7.addConstraint(Sketcher.Constraint("Horizontal", 6))
sketch7.addConstraint(Sketcher.Constraint("Vertical", 7))
sketch7.addConstraint(Sketcher.Constraint("Equal", 8, 9))
sketch7.addConstraint(Sketcher.Constraint("Equal", 9, 10))
sketch7.addConstraint(Sketcher.Constraint("Equal", 10, 11))
sketch7.addConstraint(Sketcher.Constraint("Symmetric", 9, 3, 10, 3, -2))
sketch7.addConstraint(Sketcher.Constraint("Symmetric", 8, 3, 11, 3, -2))
sketch7.addConstraint(Sketcher.Constraint("Horizontal", 8, 3, 9, 3))
sketch7.addConstraint(Sketcher.Constraint("Diameter", 8, 0.25))
sketch7.addConstraint(Sketcher.Constraint("DistanceY", 0, 2, 0, 1, 5.0))
sketch7.addConstraint(Sketcher.Constraint("DistanceX", 1, 2, 1, 1, 9.5))
sketch7.addConstraint(Sketcher.Constraint("DistanceX", 4, 1, 4, 2, 8.9))
sketch7.addConstraint(Sketcher.Constraint("DistanceY", 5, 1, 5, 2, 4.4))
sketch7.addConstraint(Sketcher.Constraint("DistanceY", 0, 2, -1, 1, 16.0))
sketch7.addConstraint(Sketcher.Constraint("DistanceY", 4, 2, 10, 3, 3.0))
sketch7.addConstraint(Sketcher.Constraint("DistanceY", 8, 3, -1, 1, 12.7))
sketch7.addConstraint(Sketcher.Constraint("DistanceX", 9, 3, 8, 3, 1.9))
sketch7.addConstraint(Sketcher.Constraint("DistanceX", 8, 3, 10, 3, 3.8))
sketch7.addConstraint(Sketcher.Constraint("DistanceX", 10, 3, 0, 2, 1.9))
sketch7.addConstraint(Sketcher.Constraint("DistanceX", 4, 2, 0, 2, 0.3))
pad4 = doc.addObject("PartDesign::Pad", "Pad003")
body.addObject(pad4)
pad4.Profile = sketch7
pad4.Length = 6
pad4.Reversed = True

# Sketch on XY plane
sketch8 = doc.addObject("Sketcher::SketchObject", "Sketch007")
body.addObject(sketch8)
sketch8.AttachmentSupport = (doc.XY_Plane, [""])
sketch8.MapMode = "FlatFace"
sketch8.addGeometry(Part.Circle(Vector(9.31, 0, 0), Vector(0, 0, 1), 1.59), False)  # 0
sketch8.addGeometry(Part.Circle(Vector(-7.35, 0, 0), Vector(0, 0, 1), 1.54), False)  # 1
add_polygon(sketch8, [(-4.22, -2.6), (-4.22, -7.99), (-9.92, -7.99), (-9.92, -2.6)])  # lines 2-5
add_polygon(sketch8, [(-7.78, 10.19), (-7.78, 6.34), (-12.37, 6.34), (-12.37, 10.19)])  # lines 6-9
add_polygon(sketch8, [(-12.37, -2.05), (-12.37, -2.6), (-13.53, -2.6), (-13.53, -2.05)])  # lines 10-13
add_polygon(sketch8, [(-12.37, -3.46), (-12.37, -3.95), (-13.53, -3.95), (-13.53, -3.46)])  # lines 14-17
add_polygon(sketch8, [(-12.37, -4.75), (-12.37, -5.3), (-13.53, -5.3), (-13.53, -4.75)])  # lines 18-21
add_polygon(sketch8, [(-12.95, -6.15), (-12.95, -6.77), (-13.53, -6.77), (-13.53, -6.15)])  # lines 22-25
add_polygon(sketch8, [(-10.71, -9.77), (-10.71, -12.22), (-12.37, -12.22), (-12.37, -9.77)])  # lines 26-29
add_polygon(sketch8, [(-13.53, -9.4), (-13.53, -11.54), (-14.76, -11.54), (-14.76, -9.4)])  # lines 30-33
add_polygon(sketch8, [(9.31, -9.4), (9.31, -11.54), (7.29, -11.54), (7.29, -9.4)])  # lines 34-37
add_polygon(sketch8, [(10.16, -6.46), (10.16, -7.44), (7.29, -7.44), (7.29, -6.46)])  # lines 38-41
add_polygon(sketch8, [(5.02, -7.99), (5.02, -8.91), (3.18, -8.91), (3.18, -7.99)])  # lines 42-45
add_polygon(sketch8, [(5.39, -1.38), (5.39, -2.6), (3.55, -2.6), (3.55, -1.38)])  # lines 46-49
add_polygon(sketch8, [(5.39, -3.7), (5.39, -3.95), (3.55, -3.95), (3.55, -3.7)])  # lines 50-53
add_polygon(sketch8, [(10.78, 13.13), (10.78, 10.81), (10.16, 10.81), (10.16, 13.13)])  # lines 54-57
add_polygon(sketch8, [(8.63, 12.77), (8.63, 12.34), (7.29, 12.34), (7.29, 12.77)])  # lines 58-61
add_polygon(sketch8, [(8.63, 11.97), (8.63, 11.24), (7.29, 11.24), (7.29, 11.97)])  # lines 62-65
add_polygon(sketch8, [(5.88, 13.13), (5.88, 11.24), (5.39, 11.24), (5.39, 13.13)])  # lines 66-69
add_polygon(sketch8, [(4.1, 12.55), (4.1, 12.18), (3.18, 12.18), (3.18, 12.55)])  # lines 70-73
add_polygon(sketch8, [(4.1, 11.6), (4.1, 11.24), (3.18, 11.24), (3.18, 11.6)])  # lines 74-77
sketch8.addConstraint(Sketcher.Constraint("Vertical", 2))
sketch8.addConstraint(Sketcher.Constraint("Horizontal", 3))
sketch8.addConstraint(Sketcher.Constraint("Vertical", 4))
sketch8.addConstraint(Sketcher.Constraint("Horizontal", 5))
sketch8.addConstraint(Sketcher.Constraint("Vertical", 6))
sketch8.addConstraint(Sketcher.Constraint("Horizontal", 7))
sketch8.addConstraint(Sketcher.Constraint("Vertical", 8))
sketch8.addConstraint(Sketcher.Constraint("Horizontal", 9))
sketch8.addConstraint(Sketcher.Constraint("Vertical", 10))
sketch8.addConstraint(Sketcher.Constraint("Horizontal", 11))
sketch8.addConstraint(Sketcher.Constraint("Vertical", 12))
sketch8.addConstraint(Sketcher.Constraint("Horizontal", 13))
sketch8.addConstraint(Sketcher.Constraint("Vertical", 14))
sketch8.addConstraint(Sketcher.Constraint("Horizontal", 15))
sketch8.addConstraint(Sketcher.Constraint("Vertical", 16))
sketch8.addConstraint(Sketcher.Constraint("Horizontal", 17))
sketch8.addConstraint(Sketcher.Constraint("Vertical", 18))
sketch8.addConstraint(Sketcher.Constraint("Horizontal", 19))
sketch8.addConstraint(Sketcher.Constraint("Vertical", 20))
sketch8.addConstraint(Sketcher.Constraint("Horizontal", 21))
sketch8.addConstraint(Sketcher.Constraint("Vertical", 22))
sketch8.addConstraint(Sketcher.Constraint("Horizontal", 23))
sketch8.addConstraint(Sketcher.Constraint("Vertical", 24))
sketch8.addConstraint(Sketcher.Constraint("Horizontal", 25))
sketch8.addConstraint(Sketcher.Constraint("Vertical", 26))
sketch8.addConstraint(Sketcher.Constraint("Horizontal", 27))
sketch8.addConstraint(Sketcher.Constraint("Vertical", 28))
sketch8.addConstraint(Sketcher.Constraint("Horizontal", 29))
sketch8.addConstraint(Sketcher.Constraint("Vertical", 30))
sketch8.addConstraint(Sketcher.Constraint("Horizontal", 31))
sketch8.addConstraint(Sketcher.Constraint("Vertical", 32))
sketch8.addConstraint(Sketcher.Constraint("Horizontal", 33))
sketch8.addConstraint(Sketcher.Constraint("Vertical", 34))
sketch8.addConstraint(Sketcher.Constraint("Horizontal", 35))
sketch8.addConstraint(Sketcher.Constraint("Vertical", 36))
sketch8.addConstraint(Sketcher.Constraint("Horizontal", 37))
sketch8.addConstraint(Sketcher.Constraint("Vertical", 38))
sketch8.addConstraint(Sketcher.Constraint("Horizontal", 39))
sketch8.addConstraint(Sketcher.Constraint("Vertical", 40))
sketch8.addConstraint(Sketcher.Constraint("Horizontal", 41))
sketch8.addConstraint(Sketcher.Constraint("Vertical", 42))
sketch8.addConstraint(Sketcher.Constraint("Horizontal", 43))
sketch8.addConstraint(Sketcher.Constraint("Vertical", 44))
sketch8.addConstraint(Sketcher.Constraint("Horizontal", 45))
sketch8.addConstraint(Sketcher.Constraint("Vertical", 46))
sketch8.addConstraint(Sketcher.Constraint("Horizontal", 47))
sketch8.addConstraint(Sketcher.Constraint("Vertical", 48))
sketch8.addConstraint(Sketcher.Constraint("Horizontal", 49))
sketch8.addConstraint(Sketcher.Constraint("Vertical", 50))
sketch8.addConstraint(Sketcher.Constraint("Horizontal", 51))
sketch8.addConstraint(Sketcher.Constraint("Vertical", 52))
sketch8.addConstraint(Sketcher.Constraint("Horizontal", 53))
sketch8.addConstraint(Sketcher.Constraint("Vertical", 54))
sketch8.addConstraint(Sketcher.Constraint("Horizontal", 55))
sketch8.addConstraint(Sketcher.Constraint("Vertical", 56))
sketch8.addConstraint(Sketcher.Constraint("Horizontal", 57))
sketch8.addConstraint(Sketcher.Constraint("Vertical", 58))
sketch8.addConstraint(Sketcher.Constraint("Horizontal", 59))
sketch8.addConstraint(Sketcher.Constraint("Vertical", 60))
sketch8.addConstraint(Sketcher.Constraint("Horizontal", 61))
sketch8.addConstraint(Sketcher.Constraint("Vertical", 62))
sketch8.addConstraint(Sketcher.Constraint("Horizontal", 63))
sketch8.addConstraint(Sketcher.Constraint("Vertical", 64))
sketch8.addConstraint(Sketcher.Constraint("Horizontal", 65))
sketch8.addConstraint(Sketcher.Constraint("Vertical", 66))
sketch8.addConstraint(Sketcher.Constraint("Horizontal", 67))
sketch8.addConstraint(Sketcher.Constraint("Vertical", 68))
sketch8.addConstraint(Sketcher.Constraint("Horizontal", 69))
sketch8.addConstraint(Sketcher.Constraint("Vertical", 70))
sketch8.addConstraint(Sketcher.Constraint("Horizontal", 71))
sketch8.addConstraint(Sketcher.Constraint("Vertical", 72))
sketch8.addConstraint(Sketcher.Constraint("Horizontal", 73))
sketch8.addConstraint(Sketcher.Constraint("Vertical", 74))
sketch8.addConstraint(Sketcher.Constraint("Horizontal", 75))
sketch8.addConstraint(Sketcher.Constraint("Vertical", 76))
sketch8.addConstraint(Sketcher.Constraint("Horizontal", 77))
sketch8.addConstraint(Sketcher.Constraint("PointOnObject", 0, 3, -1))
sketch8.addConstraint(Sketcher.Constraint("PointOnObject", 1, 3, -1))
sketch8.addConstraint(Sketcher.Constraint("Horizontal", 5, 2, 10, 2))
sketch8.addConstraint(Sketcher.Constraint("Horizontal", 31, 2, 34, 2))
sketch8.addConstraint(Sketcher.Constraint("Horizontal", 33, 2, 36, 2))
sketch8.addConstraint(Sketcher.Constraint("Horizontal", 3, 2, 44, 2))
sketch8.addConstraint(Sketcher.Constraint("Horizontal", 11, 2, 46, 2))
sketch8.addConstraint(Sketcher.Constraint("Horizontal", 15, 2, 50, 2))
sketch8.addConstraint(Sketcher.Constraint("Horizontal", 63, 2, 66, 2))
sketch8.addConstraint(Sketcher.Constraint("Horizontal", 57, 2, 68, 2))
sketch8.addConstraint(Sketcher.Constraint("Horizontal", 67, 2, 74, 2))
sketch8.addConstraint(Sketcher.Constraint("Vertical", 8, 2, 10, 2))
sketch8.addConstraint(Sketcher.Constraint("Vertical", 13, 2, 14, 2))
sketch8.addConstraint(Sketcher.Constraint("Vertical", 12, 2, 15, 2))
sketch8.addConstraint(Sketcher.Constraint("Vertical", 17, 2, 18, 2))
sketch8.addConstraint(Sketcher.Constraint("Vertical", 16, 2, 19, 2))
sketch8.addConstraint(Sketcher.Constraint("Vertical", 20, 2, 23, 2))
sketch8.addConstraint(Sketcher.Constraint("Vertical", 21, 2, 27, 2))
sketch8.addConstraint(Sketcher.Constraint("Vertical", 24, 2, 30, 2))
sketch8.addConstraint(Sketcher.Constraint("Vertical", 0, 3, 34, 2))
sketch8.addConstraint(Sketcher.Constraint("Vertical", 36, 2, 39, 2))
sketch8.addConstraint(Sketcher.Constraint("Vertical", 49, 2, 50, 2))
sketch8.addConstraint(Sketcher.Constraint("Vertical", 48, 2, 51, 2))
sketch8.addConstraint(Sketcher.Constraint("Vertical", 41, 2, 55, 2))
sketch8.addConstraint(Sketcher.Constraint("Vertical", 40, 2, 59, 2))
sketch8.addConstraint(Sketcher.Constraint("Vertical", 61, 2, 62, 2))
sketch8.addConstraint(Sketcher.Constraint("Vertical", 60, 2, 63, 2))
sketch8.addConstraint(Sketcher.Constraint("Vertical", 53, 2, 67, 2))
sketch8.addConstraint(Sketcher.Constraint("Vertical", 44, 2, 71, 2))
sketch8.addConstraint(Sketcher.Constraint("Vertical", 73, 2, 74, 2))
sketch8.addConstraint(Sketcher.Constraint("Vertical", 72, 2, 75, 2))
sketch8.addConstraint(Sketcher.Constraint("Equal", 45, 47))
sketch8.addConstraint(Sketcher.Constraint("Equal", 69, 14))
sketch8.addConstraint(Sketcher.Constraint("Equal", 12, 18))
sketch8.addConstraint(Sketcher.Constraint("Equal", 57, 22))
sketch8.addConstraint(Sketcher.Constraint("Equal", 77, 42))
sketch8.addConstraint(Sketcher.Constraint("Equal", 33, 46))
sketch8.addConstraint(Sketcher.Constraint("Equal", 72, 74))
sketch8.addConstraint(Sketcher.Constraint("Diameter", 0, 3.182109))
sketch8.addConstraint(Sketcher.Constraint("Diameter", 1, 3.076688))
sketch8.addConstraint(Sketcher.Constraint("DistanceY", 58, 2, 58, 1, 0.428599))
sketch8.addConstraint(Sketcher.Constraint("DistanceX", 3, 2, 3, 1, 5.694239))
sketch8.addConstraint(Sketcher.Constraint("DistanceX", 7, 2, 7, 1, 4.592128))
sketch8.addConstraint(Sketcher.Constraint("DistanceX", 11, 2, 11, 1, 1.163339))
sketch8.addConstraint(Sketcher.Constraint("DistanceX", 23, 2, 23, 1, 0.58167))
sketch8.addConstraint(Sketcher.Constraint("DistanceX", 43, 2, 43, 1, 1.836851))
sketch8.addConstraint(Sketcher.Constraint("DistanceY", 54, 2, 54, 1, 2.326678))
sketch8.addConstraint(Sketcher.Constraint("DistanceY", 62, 2, 62, 1, 0.734741))
sketch8.addConstraint(Sketcher.Constraint("DistanceY", 66, 2, 66, 1, 1.89808))
sketch8.addConstraint(Sketcher.Constraint("DistanceY", 70, 2, 70, 1, 0.36737))
sketch8.addConstraint(Sketcher.Constraint("DistanceY", 20, 2, -1, 1, 4.745199))
sketch8.addConstraint(Sketcher.Constraint("DistanceX", -1, 1, 58, 2, 8.633202))
sketch8.addConstraint(Sketcher.Constraint("DistanceX", -1, 1, 70, 2, 4.102301))
sketch8.addConstraint(Sketcher.Constraint("DistanceX", 27, 2, 27, 1, 1.653166))
sketch8.addConstraint(Sketcher.Constraint("DistanceX", 31, 2, 31, 1, 1.224568))
sketch8.addConstraint(Sketcher.Constraint("DistanceX", 35, 2, 35, 1, 2.020537))
sketch8.addConstraint(Sketcher.Constraint("DistanceX", 39, 2, 39, 1, 2.877734))
sketch8.addConstraint(Sketcher.Constraint("DistanceX", 55, 2, 55, 1, 0.612284))
sketch8.addConstraint(Sketcher.Constraint("DistanceX", 59, 2, 59, 1, 1.347024))
sketch8.addConstraint(Sketcher.Constraint("DistanceX", 67, 2, 67, 1, 0.489827))
sketch8.addConstraint(Sketcher.Constraint("DistanceX", 71, 2, 71, 1, 0.918426))
sketch8.addConstraint(Sketcher.Constraint("DistanceY", 2, 2, 2, 1, 5.388097))
sketch8.addConstraint(Sketcher.Constraint("DistanceY", 6, 2, 6, 1, 3.857388))
sketch8.addConstraint(Sketcher.Constraint("DistanceY", 10, 2, 10, 1, 0.551055))
sketch8.addConstraint(Sketcher.Constraint("DistanceY", 26, 2, 26, 1, 2.449135))
sketch8.addConstraint(Sketcher.Constraint("DistanceY", 30, 2, 30, 1, 2.142993))
sketch8.addConstraint(Sketcher.Constraint("DistanceY", 38, 2, 38, 1, 0.979654))
sketch8.addConstraint(Sketcher.Constraint("DistanceY", 50, 2, 50, 1, 0.244914))
sketch8.addConstraint(Sketcher.Constraint("DistanceX", 2, 2, -1, 1, 4.224758))
sketch8.addConstraint(Sketcher.Constraint("DistanceX", 11, 2, -1, 1, 13.531472))
sketch8.addConstraint(Sketcher.Constraint("DistanceY", 12, 2, -1, 1, 2.051151))
sketch8.addConstraint(Sketcher.Constraint("DistanceY", 14, 2, -1, 1, 3.94923))
sketch8.addConstraint(Sketcher.Constraint("DistanceY", 26, 2, -1, 1, 12.215062))
sketch8.addConstraint(Sketcher.Constraint("DistanceY", 30, 2, -1, 1, 11.54155))
sketch8.addConstraint(Sketcher.Constraint("DistanceY", 38, 2, -1, 1, 7.439248))
sketch8.addConstraint(Sketcher.Constraint("DistanceY", -1, 1, 54, 2, 10.806809))
sketch8.addConstraint(Sketcher.Constraint("DistanceY", -1, 1, 58, 2, 12.337519))
sketch8.addConstraint(Sketcher.Constraint("DistanceX", 1, 3, -1, 1, 7.347406))
sketch8.addConstraint(Sketcher.Constraint("DistanceY", -1, 1, 6, 2, 6.337137))
sketch8.addConstraint(Sketcher.Constraint("DistanceY", 22, 2, -1, 1, 6.765736))
sketch8.addConstraint(Sketcher.Constraint("DistanceX", -1, 1, 46, 2, 5.388097))
sketch8.addConstraint(Sketcher.Constraint("DistanceY", -1, 1, 70, 2, 12.184448))
pad5 = doc.addObject("PartDesign::Pad", "Pad004")
body.addObject(pad5)
pad5.Profile = sketch8
pad5.Length = 1
pad5.Reversed = True

doc.recompute()
